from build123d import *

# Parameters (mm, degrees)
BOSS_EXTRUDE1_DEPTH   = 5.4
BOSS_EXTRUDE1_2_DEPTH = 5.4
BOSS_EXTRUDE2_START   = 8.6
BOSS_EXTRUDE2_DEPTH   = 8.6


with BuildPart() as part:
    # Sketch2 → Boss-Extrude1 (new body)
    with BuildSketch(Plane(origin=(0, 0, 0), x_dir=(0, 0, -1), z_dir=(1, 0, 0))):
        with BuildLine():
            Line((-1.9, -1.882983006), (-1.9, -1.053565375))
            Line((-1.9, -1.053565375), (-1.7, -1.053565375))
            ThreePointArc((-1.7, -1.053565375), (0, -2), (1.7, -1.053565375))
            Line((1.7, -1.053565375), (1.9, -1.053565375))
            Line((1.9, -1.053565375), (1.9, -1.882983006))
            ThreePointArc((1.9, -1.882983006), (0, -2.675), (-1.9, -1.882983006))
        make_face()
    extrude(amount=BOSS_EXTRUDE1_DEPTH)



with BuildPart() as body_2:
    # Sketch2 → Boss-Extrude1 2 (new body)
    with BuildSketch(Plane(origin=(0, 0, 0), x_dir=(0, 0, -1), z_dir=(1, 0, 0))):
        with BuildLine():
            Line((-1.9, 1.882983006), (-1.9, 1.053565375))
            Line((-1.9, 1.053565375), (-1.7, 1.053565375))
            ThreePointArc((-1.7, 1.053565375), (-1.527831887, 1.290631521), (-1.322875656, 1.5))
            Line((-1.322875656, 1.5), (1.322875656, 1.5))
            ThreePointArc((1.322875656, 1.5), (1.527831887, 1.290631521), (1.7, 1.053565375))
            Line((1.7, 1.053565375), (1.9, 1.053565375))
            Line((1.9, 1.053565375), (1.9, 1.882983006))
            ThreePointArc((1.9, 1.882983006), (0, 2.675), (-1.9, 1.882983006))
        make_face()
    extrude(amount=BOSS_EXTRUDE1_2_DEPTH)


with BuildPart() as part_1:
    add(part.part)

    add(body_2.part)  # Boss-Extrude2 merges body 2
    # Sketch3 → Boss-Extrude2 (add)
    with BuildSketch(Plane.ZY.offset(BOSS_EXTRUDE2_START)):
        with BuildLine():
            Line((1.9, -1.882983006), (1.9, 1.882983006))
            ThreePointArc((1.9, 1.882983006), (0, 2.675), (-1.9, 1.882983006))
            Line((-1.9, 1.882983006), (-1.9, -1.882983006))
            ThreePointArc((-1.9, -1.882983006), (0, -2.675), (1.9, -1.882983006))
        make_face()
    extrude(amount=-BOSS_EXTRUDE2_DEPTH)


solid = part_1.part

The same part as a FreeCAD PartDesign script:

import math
import FreeCAD as App
import Part
import Sketcher

V = App.Vector
Q = App.Units.Quantity

doc = App.newDocument("Part")
params = doc.addObject("Spreadsheet::Sheet", "Params")
for row, (alias, value) in enumerate([
    ("sketch1_radius", "2 mm"),
    ("sketch1_height", "0.2 mm"),
    ("pad1_length", "5.4 mm"),
    ("sketch2_radius", "2 mm"),
    ("sketch2_height", "0.2 mm"),
    ("pad2_length", "5.4 mm"),
    ("pad3_length", "8.6 mm"),
], start=1):
    params.set(f"A{row}", alias)
    params.set(f"B{row}", "=" + value)
    params.setAlias(f"B{row}", alias)

body = doc.addObject("PartDesign::Body", "Body")

# Sketch on YZ plane
sketch1 = doc.addObject("Sketcher::SketchObject", "Sketch")
body.addObject(sketch1)
sketch1.AttachmentSupport = (doc.YZ_Plane, [""])
sketch1.MapMode = "FlatFace"
sketch1.addGeometry([
    Part.LineSegment(V(-1.05, 1.9, 0), V(-1.88, 1.9, 0)),  # 0
    Part.ArcOfCircle(Part.Circle(V(0, 0, 0), V(0, 0, 1), 2.68), math.radians(135), math.radians(225)),  # 1
    Part.LineSegment(V(-1.88, -1.9, 0), V(-1.05, -1.9, 0)),  # 2
    Part.LineSegment(V(-1.05, -1.9, 0), V(-1.05, -1.7, 0)),  # 3
    Part.ArcOfCircle(Part.Circle(V(0, 0, 0), V(0, 0, 1), 2), math.radians(122), math.radians(238)),  # 4
    Part.LineSegment(V(-1.05, 1.7, 0), V(-1.05, 1.9, 0)),  # 5
], False)
sketch1.addConstraint([
    Sketcher.Constraint("Coincident", 0, 2, 1, 1),
    Sketcher.Constraint("Coincident", 1, 2, 2, 1),
    Sketcher.Constraint("Coincident", 2, 2, 3, 1),
    Sketcher.Constraint("Coincident", 3, 2, 4, 2),
    Sketcher.Constraint("Coincident", 4, 1, 5, 1),
    Sketcher.Constraint("Coincident", 5, 2, 0, 1),
    Sketcher.Constraint("Horizontal", 0),
    Sketcher.Constraint("Horizontal", 2),
    Sketcher.Constraint("Vertical", 3),
    Sketcher.Constraint("Vertical", 5),
    Sketcher.Constraint("Coincident", 1, 3, -1, 1),
    Sketcher.Constraint("Coincident", 4, 3, -1, 1),
    Sketcher.Constraint("Symmetric", 2, 2, 5, 2, -1),
    Sketcher.Constraint("Radius", 4, Q("2 mm")),
    Sketcher.Constraint("DistanceY", 3, 1, 3, 2, Q("0.2 mm")),
    Sketcher.Constraint("Radius", 1, Q("2.675 mm")),
    Sketcher.Constraint("DistanceY", -1, 1, 0, 2, Q("1.9 mm")),
])
sketch1.setExpression("Constraints[13]", "Params.sketch1_radius")
sketch1.setExpression("Constraints[14]", "Params.sketch1_height")
pad1 = doc.addObject("PartDesign::Pad", "Pad")
body.addObject(pad1)
pad1.Profile = sketch1
pad1.setExpression("Length", "Params.pad1_length")
body2 = doc.addObject("PartDesign::Body", "Body001")

# Sketch on YZ plane
sketch2 = doc.addObject("Sketcher::SketchObject", "Sketch001")
body2.addObject(sketch2)
sketch2.AttachmentSupport = (doc.getObject("YZ_Plane001"), [""])
sketch2.MapMode = "FlatFace"
sketch2.addGeometry([
    Part.LineSegment(V(1.88, 1.9, 0), V(1.05, 1.9, 0)),  # 0
    Part.LineSegment(V(1.05, 1.9, 0), V(1.05, 1.7, 0)),  # 1
    Part.ArcOfCircle(Part.Circle(V(0, 0, 0), V(0, 0, 1), 2), math.radians(41.41), math.radians(58.21)),  # 2
    Part.LineSegment(V(1.5, 1.32, 0), V(1.5, -1.32, 0)),  # 3
    Part.ArcOfCircle(Part.Circle(V(0, 0, 0), V(0, 0, 1), 2), math.radians(-58.21), math.radians(-41.41)),  # 4
    Part.LineSegment(V(1.05, -1.7, 0), V(1.05, -1.9, 0)),  # 5
    Part.LineSegment(V(1.05, -1.9, 0), V(1.88, -1.9, 0)),  # 6
    Part.ArcOfCircle(Part.Circle(V(0, 0, 0), V(0, 0, 1), 2.68), math.radians(-45), math.radians(45)),  # 7
], False)
sketch2.addConstraint([
    Sketcher.Constraint("Coincident", 0, 2, 1, 1),
    Sketcher.Constraint("Coincident", 1, 2, 2, 2),
    Sketcher.Constraint("Coincident", 2, 1, 3, 1),
    Sketcher.Constraint("Coincident", 3, 2, 4, 2),
    Sketcher.Constraint("Coincident", 4, 1, 5, 1),
    Sketcher.Constraint("Coincident", 5, 2, 6, 1),
    Sketcher.Constraint("Coincident", 6, 2, 7, 1),
    Sketcher.Constraint("Coincident", 7, 2, 0, 1),
    Sketcher.Constraint("Horizontal", 0),
    Sketcher.Constraint("Vertical", 1),
    Sketcher.Constraint("Vertical", 3),
    Sketcher.Constraint("Vertical", 5),
    Sketcher.Constraint("Horizontal", 6),
    Sketcher.Constraint("Coincident", 2, 3, -1, 1),
    Sketcher.Constraint("Coincident", 4, 3, -1, 1),
    Sketcher.Constraint("Coincident", 7, 3, -1, 1),
    Sketcher.Constraint("Equal", 2, 4),
    Sketcher.Constraint("Symmetric", 0, 2, 5, 2, -1),
    Sketcher.Constraint("Radius", 2, Q("2 mm")),
    Sketcher.Constraint("DistanceY", 1, 2, 1, 1, Q("0.2 mm")),
    Sketcher.Constraint("Radius", 7, Q("2.675 mm")),
    Sketcher.Constraint("DistanceY", -1, 1, 0, 2, Q("1.9 mm")),
    Sketcher.Constraint("DistanceX", -1, 1, 2, 1, Q("1.5 mm")),
])
sketch2.setExpression("Constraints[18]", "Params.sketch2_radius")
sketch2.setExpression("Constraints[19]", "Params.sketch2_height")
pad2 = doc.addObject("PartDesign::Pad", "Pad001")
body2.addObject(pad2)
pad2.Profile = sketch2
pad2.setExpression("Length", "Params.pad2_length")
body.AllowCompound = True
doc.recompute()

boolean = doc.addObject("PartDesign::Boolean", "Boolean")
body.addObject(boolean)
boolean.Type = "Fuse"
boolean.addObjects([body2])

# Sketch on YZ plane
sketch3 = doc.addObject("Sketcher::SketchObject", "Sketch002")
body.addObject(sketch3)
sketch3.AttachmentSupport = (doc.YZ_Plane, [""])
sketch3.MapMode = "FlatFace"
sketch3.AttachmentOffset = App.Placement(V(0, 0, -8.6), App.Rotation())
sketch3.addGeometry([
    Part.LineSegment(V(-1.9, 1.9, 0), V(1.9, 1.9, 0)),
    Part.ArcOfCircle(Part.Circle(V(0, 0, 0), V(0, 0, 1), 2.7), math.radians(-45), math.radians(45)),
    Part.LineSegment(V(1.9, -1.9, 0), V(-1.9, -1.9, 0)),
    Part.ArcOfCircle(Part.Circle(V(0, 0, 0), V(0, 0, 1), 2.7), math.radians(135), math.radians(225)),
], False)
sketch3.addConstraint([
    Sketcher.Constraint("Coincident", 0, 2, 1, 2),
    Sketcher.Constraint("Coincident", 1, 1, 2, 1),
    Sketcher.Constraint("Coincident", 2, 2, 3, 2),
    Sketcher.Constraint("Coincident", 3, 1, 0, 1),
    Sketcher.Constraint("Horizontal", 0),
    Sketcher.Constraint("Horizontal", 2),
    Sketcher.Constraint("Coincident", 1, 3, -1, 1),
    Sketcher.Constraint("Coincident", 3, 3, -1, 1),
    Sketcher.Constraint("Equal", 1, 3),
    Sketcher.Constraint("Vertical", 0, 2, 1, 1),
    Sketcher.Constraint("Radius", 1, Q("2.675 mm")),
    Sketcher.Constraint("DistanceY", -1, 1, 0, 2, Q("1.9 mm")),
])
pad3 = doc.addObject("PartDesign::Pad", "Pad002")
body.addObject(pad3)
pad3.Profile = sketch3
pad3.setExpression("Length", "Params.pad3_length")

doc.recompute()
